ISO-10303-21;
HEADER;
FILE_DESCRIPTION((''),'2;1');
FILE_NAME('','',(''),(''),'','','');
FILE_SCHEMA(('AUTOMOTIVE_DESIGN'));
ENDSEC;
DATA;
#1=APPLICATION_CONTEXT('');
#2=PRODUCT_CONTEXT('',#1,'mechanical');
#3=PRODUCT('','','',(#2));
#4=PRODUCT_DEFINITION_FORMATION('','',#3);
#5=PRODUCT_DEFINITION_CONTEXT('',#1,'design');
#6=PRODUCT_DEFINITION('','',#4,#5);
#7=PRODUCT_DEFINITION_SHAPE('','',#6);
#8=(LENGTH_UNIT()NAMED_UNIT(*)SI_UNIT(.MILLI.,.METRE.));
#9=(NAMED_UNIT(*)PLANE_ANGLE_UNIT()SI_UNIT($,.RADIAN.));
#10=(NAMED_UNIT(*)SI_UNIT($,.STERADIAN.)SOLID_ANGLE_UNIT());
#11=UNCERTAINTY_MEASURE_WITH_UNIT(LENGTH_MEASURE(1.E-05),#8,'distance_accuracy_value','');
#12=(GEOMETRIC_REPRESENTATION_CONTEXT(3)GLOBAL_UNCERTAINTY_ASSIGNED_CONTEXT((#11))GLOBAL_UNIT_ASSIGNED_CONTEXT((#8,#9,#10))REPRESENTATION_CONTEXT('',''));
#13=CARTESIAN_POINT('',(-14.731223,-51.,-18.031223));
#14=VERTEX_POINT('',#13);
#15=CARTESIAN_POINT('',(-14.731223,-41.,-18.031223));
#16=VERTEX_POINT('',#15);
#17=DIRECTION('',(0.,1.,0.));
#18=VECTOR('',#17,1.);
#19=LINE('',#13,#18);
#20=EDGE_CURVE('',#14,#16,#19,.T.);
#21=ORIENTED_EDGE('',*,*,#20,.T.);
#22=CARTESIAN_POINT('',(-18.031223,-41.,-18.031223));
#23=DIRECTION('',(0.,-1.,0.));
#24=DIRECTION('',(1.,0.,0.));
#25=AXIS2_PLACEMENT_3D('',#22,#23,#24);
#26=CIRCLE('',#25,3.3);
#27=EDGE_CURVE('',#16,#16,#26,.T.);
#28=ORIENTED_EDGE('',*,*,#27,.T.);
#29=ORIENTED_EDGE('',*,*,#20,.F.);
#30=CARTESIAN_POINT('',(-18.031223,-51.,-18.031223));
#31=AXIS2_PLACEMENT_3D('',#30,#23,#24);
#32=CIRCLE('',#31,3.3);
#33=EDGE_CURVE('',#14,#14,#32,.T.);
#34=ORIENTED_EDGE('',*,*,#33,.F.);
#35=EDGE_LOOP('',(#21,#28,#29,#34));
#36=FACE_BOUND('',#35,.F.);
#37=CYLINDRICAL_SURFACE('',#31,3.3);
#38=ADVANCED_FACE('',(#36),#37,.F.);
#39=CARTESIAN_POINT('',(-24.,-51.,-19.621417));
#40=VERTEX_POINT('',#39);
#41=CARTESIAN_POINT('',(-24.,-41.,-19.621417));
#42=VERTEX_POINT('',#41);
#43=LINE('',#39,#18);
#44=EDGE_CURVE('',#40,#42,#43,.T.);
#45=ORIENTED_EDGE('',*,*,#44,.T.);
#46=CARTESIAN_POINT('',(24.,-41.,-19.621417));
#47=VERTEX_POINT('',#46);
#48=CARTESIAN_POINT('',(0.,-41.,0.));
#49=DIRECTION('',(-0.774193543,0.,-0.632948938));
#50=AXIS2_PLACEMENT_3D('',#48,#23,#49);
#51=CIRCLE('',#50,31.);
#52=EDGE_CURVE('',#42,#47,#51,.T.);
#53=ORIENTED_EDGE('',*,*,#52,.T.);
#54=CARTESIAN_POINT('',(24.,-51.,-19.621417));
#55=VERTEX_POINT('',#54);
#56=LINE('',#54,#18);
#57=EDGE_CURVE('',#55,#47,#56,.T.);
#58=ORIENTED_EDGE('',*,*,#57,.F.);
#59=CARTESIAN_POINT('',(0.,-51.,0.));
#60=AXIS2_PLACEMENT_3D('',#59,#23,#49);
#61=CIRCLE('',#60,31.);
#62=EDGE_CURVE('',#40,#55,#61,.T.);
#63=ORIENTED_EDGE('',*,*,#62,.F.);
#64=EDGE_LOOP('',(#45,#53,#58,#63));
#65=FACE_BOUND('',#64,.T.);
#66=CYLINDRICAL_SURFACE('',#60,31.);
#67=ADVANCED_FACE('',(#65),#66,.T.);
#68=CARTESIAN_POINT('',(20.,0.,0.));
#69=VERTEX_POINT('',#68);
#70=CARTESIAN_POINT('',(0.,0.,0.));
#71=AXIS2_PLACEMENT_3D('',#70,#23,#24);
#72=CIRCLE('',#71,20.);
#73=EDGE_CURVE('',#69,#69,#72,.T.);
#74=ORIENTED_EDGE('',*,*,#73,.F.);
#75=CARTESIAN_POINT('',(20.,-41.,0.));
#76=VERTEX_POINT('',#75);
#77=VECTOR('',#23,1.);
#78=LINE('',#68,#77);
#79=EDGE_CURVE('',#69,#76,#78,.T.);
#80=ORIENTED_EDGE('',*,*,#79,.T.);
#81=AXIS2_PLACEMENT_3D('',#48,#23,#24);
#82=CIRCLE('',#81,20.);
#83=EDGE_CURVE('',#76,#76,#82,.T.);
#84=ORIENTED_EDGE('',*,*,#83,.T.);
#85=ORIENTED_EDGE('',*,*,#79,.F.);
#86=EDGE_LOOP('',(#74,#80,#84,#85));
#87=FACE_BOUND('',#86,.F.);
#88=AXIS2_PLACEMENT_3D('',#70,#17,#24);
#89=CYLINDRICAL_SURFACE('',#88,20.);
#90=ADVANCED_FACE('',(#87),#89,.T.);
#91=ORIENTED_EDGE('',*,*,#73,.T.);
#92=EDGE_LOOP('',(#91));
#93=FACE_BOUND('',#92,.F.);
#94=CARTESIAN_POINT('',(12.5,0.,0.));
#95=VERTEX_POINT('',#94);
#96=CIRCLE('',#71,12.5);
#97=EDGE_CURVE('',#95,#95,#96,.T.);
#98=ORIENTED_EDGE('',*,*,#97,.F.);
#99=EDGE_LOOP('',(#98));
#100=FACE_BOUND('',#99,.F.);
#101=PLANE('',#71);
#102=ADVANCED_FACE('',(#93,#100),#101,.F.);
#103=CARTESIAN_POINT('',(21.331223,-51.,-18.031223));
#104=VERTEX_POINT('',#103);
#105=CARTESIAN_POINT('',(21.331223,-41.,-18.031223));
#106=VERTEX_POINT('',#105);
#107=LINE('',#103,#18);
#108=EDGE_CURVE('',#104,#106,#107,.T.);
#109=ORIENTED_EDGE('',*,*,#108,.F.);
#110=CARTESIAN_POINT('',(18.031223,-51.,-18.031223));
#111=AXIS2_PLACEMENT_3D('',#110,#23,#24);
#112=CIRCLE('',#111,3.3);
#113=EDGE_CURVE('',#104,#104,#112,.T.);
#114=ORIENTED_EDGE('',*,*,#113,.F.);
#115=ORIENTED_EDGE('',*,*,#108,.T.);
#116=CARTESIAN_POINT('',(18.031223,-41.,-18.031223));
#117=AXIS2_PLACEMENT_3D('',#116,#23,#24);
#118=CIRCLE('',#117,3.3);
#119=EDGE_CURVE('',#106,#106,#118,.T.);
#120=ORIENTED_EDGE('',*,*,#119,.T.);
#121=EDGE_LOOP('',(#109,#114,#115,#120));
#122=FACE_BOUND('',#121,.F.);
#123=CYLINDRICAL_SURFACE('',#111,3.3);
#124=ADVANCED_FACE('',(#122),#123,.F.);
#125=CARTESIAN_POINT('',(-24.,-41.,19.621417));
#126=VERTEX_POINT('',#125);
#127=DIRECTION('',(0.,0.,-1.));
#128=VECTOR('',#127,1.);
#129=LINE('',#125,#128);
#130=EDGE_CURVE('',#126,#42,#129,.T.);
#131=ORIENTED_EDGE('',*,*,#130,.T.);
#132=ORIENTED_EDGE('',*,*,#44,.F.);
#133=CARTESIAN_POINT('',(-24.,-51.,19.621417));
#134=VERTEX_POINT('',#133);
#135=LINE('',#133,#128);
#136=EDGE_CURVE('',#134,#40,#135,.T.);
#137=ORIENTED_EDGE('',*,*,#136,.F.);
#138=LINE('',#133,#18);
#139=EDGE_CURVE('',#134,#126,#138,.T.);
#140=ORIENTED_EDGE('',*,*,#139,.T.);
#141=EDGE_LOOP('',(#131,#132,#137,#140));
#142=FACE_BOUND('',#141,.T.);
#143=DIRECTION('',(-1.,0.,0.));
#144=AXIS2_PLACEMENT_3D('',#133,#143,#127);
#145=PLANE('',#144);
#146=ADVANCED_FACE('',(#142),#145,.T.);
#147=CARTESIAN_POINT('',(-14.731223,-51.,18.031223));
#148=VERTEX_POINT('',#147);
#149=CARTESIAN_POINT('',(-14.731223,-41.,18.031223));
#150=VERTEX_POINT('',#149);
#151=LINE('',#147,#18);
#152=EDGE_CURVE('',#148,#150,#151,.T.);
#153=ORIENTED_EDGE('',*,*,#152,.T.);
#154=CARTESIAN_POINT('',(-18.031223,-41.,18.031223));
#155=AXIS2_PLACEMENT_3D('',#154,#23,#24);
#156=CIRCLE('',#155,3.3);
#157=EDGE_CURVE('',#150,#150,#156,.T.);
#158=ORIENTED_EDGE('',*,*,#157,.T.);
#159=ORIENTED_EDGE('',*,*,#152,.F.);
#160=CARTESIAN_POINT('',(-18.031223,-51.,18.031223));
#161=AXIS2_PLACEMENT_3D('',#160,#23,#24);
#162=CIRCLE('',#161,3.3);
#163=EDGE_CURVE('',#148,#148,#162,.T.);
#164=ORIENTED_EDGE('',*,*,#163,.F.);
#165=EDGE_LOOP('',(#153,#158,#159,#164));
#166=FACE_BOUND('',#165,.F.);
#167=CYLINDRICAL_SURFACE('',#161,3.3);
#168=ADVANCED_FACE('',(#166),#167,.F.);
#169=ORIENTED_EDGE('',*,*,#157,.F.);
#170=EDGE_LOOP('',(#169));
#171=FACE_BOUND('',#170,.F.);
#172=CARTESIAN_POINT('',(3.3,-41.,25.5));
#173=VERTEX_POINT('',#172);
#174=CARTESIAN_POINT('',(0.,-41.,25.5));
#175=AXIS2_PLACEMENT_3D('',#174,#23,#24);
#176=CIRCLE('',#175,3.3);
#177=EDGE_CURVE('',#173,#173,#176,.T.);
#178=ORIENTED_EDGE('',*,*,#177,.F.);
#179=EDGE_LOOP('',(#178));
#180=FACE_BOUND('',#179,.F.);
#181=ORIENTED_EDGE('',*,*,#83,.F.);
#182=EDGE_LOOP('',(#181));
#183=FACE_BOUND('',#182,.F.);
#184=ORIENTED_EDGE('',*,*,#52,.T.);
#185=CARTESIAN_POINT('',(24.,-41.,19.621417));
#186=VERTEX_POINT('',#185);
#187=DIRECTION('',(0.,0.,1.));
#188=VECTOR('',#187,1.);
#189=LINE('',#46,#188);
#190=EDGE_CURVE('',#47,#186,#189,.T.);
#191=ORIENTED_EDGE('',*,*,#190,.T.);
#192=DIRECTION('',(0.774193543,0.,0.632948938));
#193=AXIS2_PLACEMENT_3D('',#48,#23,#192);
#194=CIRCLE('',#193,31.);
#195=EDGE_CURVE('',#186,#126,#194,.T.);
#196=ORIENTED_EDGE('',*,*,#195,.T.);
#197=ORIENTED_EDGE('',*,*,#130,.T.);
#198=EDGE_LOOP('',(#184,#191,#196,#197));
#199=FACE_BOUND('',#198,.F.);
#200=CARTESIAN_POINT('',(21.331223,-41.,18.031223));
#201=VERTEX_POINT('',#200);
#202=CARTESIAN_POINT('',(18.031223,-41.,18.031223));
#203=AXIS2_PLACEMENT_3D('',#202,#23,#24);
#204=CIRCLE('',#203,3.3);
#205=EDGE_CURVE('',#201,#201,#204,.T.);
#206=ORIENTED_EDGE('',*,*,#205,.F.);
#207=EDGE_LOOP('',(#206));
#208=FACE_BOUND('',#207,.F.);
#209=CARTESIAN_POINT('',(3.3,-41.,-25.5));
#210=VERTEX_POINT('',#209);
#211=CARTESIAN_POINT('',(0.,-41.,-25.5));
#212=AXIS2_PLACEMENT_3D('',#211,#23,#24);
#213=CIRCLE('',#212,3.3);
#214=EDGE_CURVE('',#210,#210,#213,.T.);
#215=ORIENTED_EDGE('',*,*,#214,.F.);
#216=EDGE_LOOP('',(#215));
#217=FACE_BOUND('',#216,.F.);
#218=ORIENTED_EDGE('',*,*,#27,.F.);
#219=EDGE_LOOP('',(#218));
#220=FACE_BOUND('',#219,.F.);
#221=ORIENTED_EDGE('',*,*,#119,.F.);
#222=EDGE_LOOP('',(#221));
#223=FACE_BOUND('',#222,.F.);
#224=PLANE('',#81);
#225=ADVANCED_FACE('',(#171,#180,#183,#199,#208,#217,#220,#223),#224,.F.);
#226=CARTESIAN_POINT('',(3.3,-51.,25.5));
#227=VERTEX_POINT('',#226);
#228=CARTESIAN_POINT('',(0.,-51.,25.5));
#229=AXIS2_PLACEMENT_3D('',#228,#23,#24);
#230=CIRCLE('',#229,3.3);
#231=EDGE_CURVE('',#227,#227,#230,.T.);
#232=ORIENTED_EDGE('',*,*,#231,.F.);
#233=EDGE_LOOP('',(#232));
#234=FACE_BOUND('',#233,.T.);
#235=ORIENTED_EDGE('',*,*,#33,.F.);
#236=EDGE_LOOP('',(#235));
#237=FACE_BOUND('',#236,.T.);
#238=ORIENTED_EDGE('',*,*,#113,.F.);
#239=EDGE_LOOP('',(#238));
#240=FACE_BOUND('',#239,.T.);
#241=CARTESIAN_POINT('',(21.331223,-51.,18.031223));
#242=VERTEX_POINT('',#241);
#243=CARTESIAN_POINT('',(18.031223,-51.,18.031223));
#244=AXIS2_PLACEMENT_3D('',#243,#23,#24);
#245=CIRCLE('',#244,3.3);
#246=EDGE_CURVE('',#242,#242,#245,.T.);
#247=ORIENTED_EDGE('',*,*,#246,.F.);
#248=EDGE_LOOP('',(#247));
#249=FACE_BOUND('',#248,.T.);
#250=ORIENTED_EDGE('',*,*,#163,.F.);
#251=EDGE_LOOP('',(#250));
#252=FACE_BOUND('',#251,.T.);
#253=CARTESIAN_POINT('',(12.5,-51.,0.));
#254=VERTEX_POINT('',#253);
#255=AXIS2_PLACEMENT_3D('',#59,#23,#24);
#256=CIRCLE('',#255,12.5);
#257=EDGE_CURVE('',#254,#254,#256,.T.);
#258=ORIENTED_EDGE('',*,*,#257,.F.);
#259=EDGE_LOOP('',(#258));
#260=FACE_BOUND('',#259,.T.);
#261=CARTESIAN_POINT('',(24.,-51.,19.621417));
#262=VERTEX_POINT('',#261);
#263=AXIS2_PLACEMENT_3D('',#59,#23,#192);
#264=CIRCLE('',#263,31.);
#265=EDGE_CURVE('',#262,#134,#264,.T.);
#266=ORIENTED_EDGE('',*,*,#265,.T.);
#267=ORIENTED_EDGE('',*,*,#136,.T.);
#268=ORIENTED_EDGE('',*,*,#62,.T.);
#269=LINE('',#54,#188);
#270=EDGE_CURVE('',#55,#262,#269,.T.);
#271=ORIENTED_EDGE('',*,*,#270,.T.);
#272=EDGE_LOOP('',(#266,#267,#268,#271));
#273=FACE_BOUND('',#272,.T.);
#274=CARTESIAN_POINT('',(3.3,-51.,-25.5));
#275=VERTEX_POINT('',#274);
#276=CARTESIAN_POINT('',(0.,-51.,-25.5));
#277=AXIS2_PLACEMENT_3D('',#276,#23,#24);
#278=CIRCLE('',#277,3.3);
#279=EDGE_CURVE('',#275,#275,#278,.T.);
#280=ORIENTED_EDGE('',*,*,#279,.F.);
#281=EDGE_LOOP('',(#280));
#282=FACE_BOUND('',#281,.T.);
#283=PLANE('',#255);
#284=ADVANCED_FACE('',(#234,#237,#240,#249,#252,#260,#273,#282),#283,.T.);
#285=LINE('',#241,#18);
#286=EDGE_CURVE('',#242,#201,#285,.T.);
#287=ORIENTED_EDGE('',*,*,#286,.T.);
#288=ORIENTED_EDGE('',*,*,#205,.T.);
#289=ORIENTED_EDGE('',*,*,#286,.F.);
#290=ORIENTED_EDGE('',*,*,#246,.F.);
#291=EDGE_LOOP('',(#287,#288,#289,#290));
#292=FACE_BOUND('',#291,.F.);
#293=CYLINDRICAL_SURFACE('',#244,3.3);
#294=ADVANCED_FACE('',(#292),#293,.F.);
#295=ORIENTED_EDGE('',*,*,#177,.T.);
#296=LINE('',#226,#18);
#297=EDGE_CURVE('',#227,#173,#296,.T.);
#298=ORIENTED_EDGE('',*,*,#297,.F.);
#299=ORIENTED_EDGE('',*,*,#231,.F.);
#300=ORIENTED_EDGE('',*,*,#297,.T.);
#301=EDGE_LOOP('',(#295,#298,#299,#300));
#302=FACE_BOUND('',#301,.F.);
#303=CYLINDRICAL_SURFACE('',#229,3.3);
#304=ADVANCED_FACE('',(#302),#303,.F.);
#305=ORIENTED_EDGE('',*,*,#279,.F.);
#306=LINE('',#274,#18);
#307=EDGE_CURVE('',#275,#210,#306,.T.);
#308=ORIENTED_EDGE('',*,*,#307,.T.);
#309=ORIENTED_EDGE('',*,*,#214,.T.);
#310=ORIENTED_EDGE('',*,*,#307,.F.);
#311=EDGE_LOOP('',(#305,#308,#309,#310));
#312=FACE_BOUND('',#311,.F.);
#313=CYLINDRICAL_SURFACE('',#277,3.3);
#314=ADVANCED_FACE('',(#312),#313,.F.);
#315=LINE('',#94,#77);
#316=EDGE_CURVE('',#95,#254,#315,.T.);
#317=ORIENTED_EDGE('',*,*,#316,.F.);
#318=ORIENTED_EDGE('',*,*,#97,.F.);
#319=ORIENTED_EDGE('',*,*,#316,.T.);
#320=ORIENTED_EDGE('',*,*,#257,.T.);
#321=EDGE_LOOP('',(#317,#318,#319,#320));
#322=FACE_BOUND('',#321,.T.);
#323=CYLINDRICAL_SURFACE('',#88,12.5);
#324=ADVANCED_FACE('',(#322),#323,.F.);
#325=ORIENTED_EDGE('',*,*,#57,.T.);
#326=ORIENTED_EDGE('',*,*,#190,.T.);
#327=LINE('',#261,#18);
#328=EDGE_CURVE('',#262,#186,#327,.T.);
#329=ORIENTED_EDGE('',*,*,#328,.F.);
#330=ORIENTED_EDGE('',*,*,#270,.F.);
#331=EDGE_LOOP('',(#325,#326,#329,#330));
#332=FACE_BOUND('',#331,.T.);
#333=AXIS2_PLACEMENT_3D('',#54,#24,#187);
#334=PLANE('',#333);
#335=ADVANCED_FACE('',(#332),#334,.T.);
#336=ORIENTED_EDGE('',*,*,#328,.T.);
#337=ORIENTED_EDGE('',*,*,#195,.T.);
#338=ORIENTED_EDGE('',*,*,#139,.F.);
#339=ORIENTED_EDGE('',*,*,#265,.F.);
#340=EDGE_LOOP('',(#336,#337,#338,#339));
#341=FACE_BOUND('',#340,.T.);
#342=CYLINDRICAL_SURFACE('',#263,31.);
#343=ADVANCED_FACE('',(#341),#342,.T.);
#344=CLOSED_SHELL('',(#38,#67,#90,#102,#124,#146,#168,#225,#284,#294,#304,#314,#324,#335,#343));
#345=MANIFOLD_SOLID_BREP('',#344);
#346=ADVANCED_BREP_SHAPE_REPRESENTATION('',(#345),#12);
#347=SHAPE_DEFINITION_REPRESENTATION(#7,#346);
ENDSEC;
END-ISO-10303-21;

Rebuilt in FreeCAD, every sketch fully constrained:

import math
import FreeCAD as App
import Part
import Sketcher

V = App.Vector
Q = App.Units.Quantity

doc = App.newDocument("Part")
body = doc.addObject("PartDesign::Body", "Body")

# Sketch on XZ plane
sketch1 = body.newObject("Sketcher::SketchObject", "Sketch")
sketch1.AttachmentSupport = (doc.getObject("XZ_Plane"), [""])
sketch1.MapMode = "FlatFace"
sketch1.addGeometry(Part.Circle(V(0, 0, 0), V(0, 0, 1), 20), False)
sketch1.addGeometry(Part.Circle(V(0, 0, 0), V(0, 0, 1), 12), False)
sketch1.addConstraint(Sketcher.Constraint("Coincident", 0, 3, -1, 1))
sketch1.addConstraint(Sketcher.Constraint("Coincident", 1, 3, -1, 1))
sketch1.addConstraint(Sketcher.Constraint("Diameter", 0, Q("40 mm")))
sketch1.addConstraint(Sketcher.Constraint("Diameter", 1, Q("25 mm")))
pad1 = body.newObject("PartDesign::Pad", "Pad")
pad1.Profile = sketch1
pad1.Length = 51

# Sketch on XZ plane
sketch2 = body.newObject("Sketcher::SketchObject", "Sketch001")
sketch2.AttachmentSupport = (doc.getObject("XZ_Plane"), [""])
sketch2.MapMode = "FlatFace"
sketch2.AttachmentOffset = App.Placement(V(0, 0, 51), App.Rotation())
sketch2.addGeometry(Part.LineSegment(V(-24, 19.6, 0), V(-24, -19.6, 0)), False)
sketch2.addGeometry(Part.ArcOfCircle(Part.Circle(V(0, 0, 0), V(0, 0, 1), 31), math.radians(-141), math.radians(-39)), False)
sketch2.addGeometry(Part.LineSegment(V(24, -19.6, 0), V(24, 19.6, 0)), False)
sketch2.addGeometry(Part.ArcOfCircle(Part.Circle(V(0, 0, 0), V(0, 0, 1), 31), math.radians(39), math.radians(141)), False)
sketch2.addGeometry(Part.Circle(V(-18, -18, 0), V(0, 0, 1), 3.3), False)
sketch2.addGeometry(Part.Circle(V(0, -25.5, 0), V(0, 0, 1), 3.3), False)
sketch2.addGeometry(Part.Circle(V(18, -18, 0), V(0, 0, 1), 3.3), False)
sketch2.addGeometry(Part.Circle(V(-18, 18, 0), V(0, 0, 1), 3.3), False)
sketch2.addGeometry(Part.Circle(V(0, 0, 0), V(0, 0, 1), 20), False)
sketch2.addGeometry(Part.Circle(V(0, 25.5, 0), V(0, 0, 1), 3.3), False)
sketch2.addGeometry(Part.Circle(V(18, 18, 0), V(0, 0, 1), 3.3), False)
sketch2.addConstraint(Sketcher.Constraint("Coincident", 0, 2, 1, 1))
sketch2.addConstraint(Sketcher.Constraint("Coincident", 1, 2, 2, 1))
sketch2.addConstraint(Sketcher.Constraint("Coincident", 2, 2, 3, 1))
sketch2.addConstraint(Sketcher.Constraint("Coincident", 3, 2, 0, 1))
sketch2.addConstraint(Sketcher.Constraint("Vertical", 0))
sketch2.addConstraint(Sketcher.Constraint("Vertical", 2))
sketch2.addConstraint(Sketcher.Constraint("Coincident", 1, 3, -1, 1))
sketch2.addConstraint(Sketcher.Constraint("Coincident", 3, 3, -1, 1))
sketch2.addConstraint(Sketcher.Constraint("Coincident", 8, 3, -1, 1))
sketch2.addConstraint(Sketcher.Constraint("Equal", 1, 3))
sketch2.addConstraint(Sketcher.Constraint("Equal", 4, 5))
sketch2.addConstraint(Sketcher.Constraint("Equal", 5, 6))
sketch2.addConstraint(Sketcher.Constraint("Equal", 6, 7))
sketch2.addConstraint(Sketcher.Constraint("Equal", 7, 9))
sketch2.addConstraint(Sketcher.Constraint("Equal", 9, 10))
sketch2.addConstraint(Sketcher.Constraint("Symmetric", 6, 3, 7, 3, -1, 1))
sketch2.addConstraint(Sketcher.Constraint("Symmetric", 5, 3, 9, 3, -1, 1))
sketch2.addConstraint(Sketcher.Constraint("Symmetric", 4, 3, 10, 3, -1, 1))
sketch2.addConstraint(Sketcher.Constraint("Symmetric", 4, 3, 6, 3, -2))
sketch2.addConstraint(Sketcher.Constraint("PointOnObject", 5, 3, -2))
sketch2.addConstraint(Sketcher.Constraint("Horizontal", 0, 2, 1, 2))
sketch2.addConstraint(Sketcher.Constraint("Diameter", 8, Q("40 mm")))
sketch2.addConstraint(Sketcher.Constraint("Radius", 1, Q("31 mm")))
sketch2.addConstraint(Sketcher.Constraint("Diameter", 4, Q("6.6 mm")))
sketch2.addConstraint(Sketcher.Constraint("DistanceX", 0, 2, -1, 1, Q("24 mm")))
sketch2.addConstraint(Sketcher.Constraint("DistanceY", 5, 3, -1, 1, Q("25.5 mm")))
sketch2.addConstraint(Sketcher.Constraint("DistanceX", 4, 3, -1, 1, Q("18.031223 mm")))
sketch2.addConstraint(Sketcher.Constraint("DistanceY", 4, 3, -1, 1, Q("18.031223 mm")))
pad2 = body.newObject("PartDesign::Pad", "Pad001")
pad2.Profile = sketch2
pad2.Length = 10
pad2.Reversed = True

doc.recompute()
